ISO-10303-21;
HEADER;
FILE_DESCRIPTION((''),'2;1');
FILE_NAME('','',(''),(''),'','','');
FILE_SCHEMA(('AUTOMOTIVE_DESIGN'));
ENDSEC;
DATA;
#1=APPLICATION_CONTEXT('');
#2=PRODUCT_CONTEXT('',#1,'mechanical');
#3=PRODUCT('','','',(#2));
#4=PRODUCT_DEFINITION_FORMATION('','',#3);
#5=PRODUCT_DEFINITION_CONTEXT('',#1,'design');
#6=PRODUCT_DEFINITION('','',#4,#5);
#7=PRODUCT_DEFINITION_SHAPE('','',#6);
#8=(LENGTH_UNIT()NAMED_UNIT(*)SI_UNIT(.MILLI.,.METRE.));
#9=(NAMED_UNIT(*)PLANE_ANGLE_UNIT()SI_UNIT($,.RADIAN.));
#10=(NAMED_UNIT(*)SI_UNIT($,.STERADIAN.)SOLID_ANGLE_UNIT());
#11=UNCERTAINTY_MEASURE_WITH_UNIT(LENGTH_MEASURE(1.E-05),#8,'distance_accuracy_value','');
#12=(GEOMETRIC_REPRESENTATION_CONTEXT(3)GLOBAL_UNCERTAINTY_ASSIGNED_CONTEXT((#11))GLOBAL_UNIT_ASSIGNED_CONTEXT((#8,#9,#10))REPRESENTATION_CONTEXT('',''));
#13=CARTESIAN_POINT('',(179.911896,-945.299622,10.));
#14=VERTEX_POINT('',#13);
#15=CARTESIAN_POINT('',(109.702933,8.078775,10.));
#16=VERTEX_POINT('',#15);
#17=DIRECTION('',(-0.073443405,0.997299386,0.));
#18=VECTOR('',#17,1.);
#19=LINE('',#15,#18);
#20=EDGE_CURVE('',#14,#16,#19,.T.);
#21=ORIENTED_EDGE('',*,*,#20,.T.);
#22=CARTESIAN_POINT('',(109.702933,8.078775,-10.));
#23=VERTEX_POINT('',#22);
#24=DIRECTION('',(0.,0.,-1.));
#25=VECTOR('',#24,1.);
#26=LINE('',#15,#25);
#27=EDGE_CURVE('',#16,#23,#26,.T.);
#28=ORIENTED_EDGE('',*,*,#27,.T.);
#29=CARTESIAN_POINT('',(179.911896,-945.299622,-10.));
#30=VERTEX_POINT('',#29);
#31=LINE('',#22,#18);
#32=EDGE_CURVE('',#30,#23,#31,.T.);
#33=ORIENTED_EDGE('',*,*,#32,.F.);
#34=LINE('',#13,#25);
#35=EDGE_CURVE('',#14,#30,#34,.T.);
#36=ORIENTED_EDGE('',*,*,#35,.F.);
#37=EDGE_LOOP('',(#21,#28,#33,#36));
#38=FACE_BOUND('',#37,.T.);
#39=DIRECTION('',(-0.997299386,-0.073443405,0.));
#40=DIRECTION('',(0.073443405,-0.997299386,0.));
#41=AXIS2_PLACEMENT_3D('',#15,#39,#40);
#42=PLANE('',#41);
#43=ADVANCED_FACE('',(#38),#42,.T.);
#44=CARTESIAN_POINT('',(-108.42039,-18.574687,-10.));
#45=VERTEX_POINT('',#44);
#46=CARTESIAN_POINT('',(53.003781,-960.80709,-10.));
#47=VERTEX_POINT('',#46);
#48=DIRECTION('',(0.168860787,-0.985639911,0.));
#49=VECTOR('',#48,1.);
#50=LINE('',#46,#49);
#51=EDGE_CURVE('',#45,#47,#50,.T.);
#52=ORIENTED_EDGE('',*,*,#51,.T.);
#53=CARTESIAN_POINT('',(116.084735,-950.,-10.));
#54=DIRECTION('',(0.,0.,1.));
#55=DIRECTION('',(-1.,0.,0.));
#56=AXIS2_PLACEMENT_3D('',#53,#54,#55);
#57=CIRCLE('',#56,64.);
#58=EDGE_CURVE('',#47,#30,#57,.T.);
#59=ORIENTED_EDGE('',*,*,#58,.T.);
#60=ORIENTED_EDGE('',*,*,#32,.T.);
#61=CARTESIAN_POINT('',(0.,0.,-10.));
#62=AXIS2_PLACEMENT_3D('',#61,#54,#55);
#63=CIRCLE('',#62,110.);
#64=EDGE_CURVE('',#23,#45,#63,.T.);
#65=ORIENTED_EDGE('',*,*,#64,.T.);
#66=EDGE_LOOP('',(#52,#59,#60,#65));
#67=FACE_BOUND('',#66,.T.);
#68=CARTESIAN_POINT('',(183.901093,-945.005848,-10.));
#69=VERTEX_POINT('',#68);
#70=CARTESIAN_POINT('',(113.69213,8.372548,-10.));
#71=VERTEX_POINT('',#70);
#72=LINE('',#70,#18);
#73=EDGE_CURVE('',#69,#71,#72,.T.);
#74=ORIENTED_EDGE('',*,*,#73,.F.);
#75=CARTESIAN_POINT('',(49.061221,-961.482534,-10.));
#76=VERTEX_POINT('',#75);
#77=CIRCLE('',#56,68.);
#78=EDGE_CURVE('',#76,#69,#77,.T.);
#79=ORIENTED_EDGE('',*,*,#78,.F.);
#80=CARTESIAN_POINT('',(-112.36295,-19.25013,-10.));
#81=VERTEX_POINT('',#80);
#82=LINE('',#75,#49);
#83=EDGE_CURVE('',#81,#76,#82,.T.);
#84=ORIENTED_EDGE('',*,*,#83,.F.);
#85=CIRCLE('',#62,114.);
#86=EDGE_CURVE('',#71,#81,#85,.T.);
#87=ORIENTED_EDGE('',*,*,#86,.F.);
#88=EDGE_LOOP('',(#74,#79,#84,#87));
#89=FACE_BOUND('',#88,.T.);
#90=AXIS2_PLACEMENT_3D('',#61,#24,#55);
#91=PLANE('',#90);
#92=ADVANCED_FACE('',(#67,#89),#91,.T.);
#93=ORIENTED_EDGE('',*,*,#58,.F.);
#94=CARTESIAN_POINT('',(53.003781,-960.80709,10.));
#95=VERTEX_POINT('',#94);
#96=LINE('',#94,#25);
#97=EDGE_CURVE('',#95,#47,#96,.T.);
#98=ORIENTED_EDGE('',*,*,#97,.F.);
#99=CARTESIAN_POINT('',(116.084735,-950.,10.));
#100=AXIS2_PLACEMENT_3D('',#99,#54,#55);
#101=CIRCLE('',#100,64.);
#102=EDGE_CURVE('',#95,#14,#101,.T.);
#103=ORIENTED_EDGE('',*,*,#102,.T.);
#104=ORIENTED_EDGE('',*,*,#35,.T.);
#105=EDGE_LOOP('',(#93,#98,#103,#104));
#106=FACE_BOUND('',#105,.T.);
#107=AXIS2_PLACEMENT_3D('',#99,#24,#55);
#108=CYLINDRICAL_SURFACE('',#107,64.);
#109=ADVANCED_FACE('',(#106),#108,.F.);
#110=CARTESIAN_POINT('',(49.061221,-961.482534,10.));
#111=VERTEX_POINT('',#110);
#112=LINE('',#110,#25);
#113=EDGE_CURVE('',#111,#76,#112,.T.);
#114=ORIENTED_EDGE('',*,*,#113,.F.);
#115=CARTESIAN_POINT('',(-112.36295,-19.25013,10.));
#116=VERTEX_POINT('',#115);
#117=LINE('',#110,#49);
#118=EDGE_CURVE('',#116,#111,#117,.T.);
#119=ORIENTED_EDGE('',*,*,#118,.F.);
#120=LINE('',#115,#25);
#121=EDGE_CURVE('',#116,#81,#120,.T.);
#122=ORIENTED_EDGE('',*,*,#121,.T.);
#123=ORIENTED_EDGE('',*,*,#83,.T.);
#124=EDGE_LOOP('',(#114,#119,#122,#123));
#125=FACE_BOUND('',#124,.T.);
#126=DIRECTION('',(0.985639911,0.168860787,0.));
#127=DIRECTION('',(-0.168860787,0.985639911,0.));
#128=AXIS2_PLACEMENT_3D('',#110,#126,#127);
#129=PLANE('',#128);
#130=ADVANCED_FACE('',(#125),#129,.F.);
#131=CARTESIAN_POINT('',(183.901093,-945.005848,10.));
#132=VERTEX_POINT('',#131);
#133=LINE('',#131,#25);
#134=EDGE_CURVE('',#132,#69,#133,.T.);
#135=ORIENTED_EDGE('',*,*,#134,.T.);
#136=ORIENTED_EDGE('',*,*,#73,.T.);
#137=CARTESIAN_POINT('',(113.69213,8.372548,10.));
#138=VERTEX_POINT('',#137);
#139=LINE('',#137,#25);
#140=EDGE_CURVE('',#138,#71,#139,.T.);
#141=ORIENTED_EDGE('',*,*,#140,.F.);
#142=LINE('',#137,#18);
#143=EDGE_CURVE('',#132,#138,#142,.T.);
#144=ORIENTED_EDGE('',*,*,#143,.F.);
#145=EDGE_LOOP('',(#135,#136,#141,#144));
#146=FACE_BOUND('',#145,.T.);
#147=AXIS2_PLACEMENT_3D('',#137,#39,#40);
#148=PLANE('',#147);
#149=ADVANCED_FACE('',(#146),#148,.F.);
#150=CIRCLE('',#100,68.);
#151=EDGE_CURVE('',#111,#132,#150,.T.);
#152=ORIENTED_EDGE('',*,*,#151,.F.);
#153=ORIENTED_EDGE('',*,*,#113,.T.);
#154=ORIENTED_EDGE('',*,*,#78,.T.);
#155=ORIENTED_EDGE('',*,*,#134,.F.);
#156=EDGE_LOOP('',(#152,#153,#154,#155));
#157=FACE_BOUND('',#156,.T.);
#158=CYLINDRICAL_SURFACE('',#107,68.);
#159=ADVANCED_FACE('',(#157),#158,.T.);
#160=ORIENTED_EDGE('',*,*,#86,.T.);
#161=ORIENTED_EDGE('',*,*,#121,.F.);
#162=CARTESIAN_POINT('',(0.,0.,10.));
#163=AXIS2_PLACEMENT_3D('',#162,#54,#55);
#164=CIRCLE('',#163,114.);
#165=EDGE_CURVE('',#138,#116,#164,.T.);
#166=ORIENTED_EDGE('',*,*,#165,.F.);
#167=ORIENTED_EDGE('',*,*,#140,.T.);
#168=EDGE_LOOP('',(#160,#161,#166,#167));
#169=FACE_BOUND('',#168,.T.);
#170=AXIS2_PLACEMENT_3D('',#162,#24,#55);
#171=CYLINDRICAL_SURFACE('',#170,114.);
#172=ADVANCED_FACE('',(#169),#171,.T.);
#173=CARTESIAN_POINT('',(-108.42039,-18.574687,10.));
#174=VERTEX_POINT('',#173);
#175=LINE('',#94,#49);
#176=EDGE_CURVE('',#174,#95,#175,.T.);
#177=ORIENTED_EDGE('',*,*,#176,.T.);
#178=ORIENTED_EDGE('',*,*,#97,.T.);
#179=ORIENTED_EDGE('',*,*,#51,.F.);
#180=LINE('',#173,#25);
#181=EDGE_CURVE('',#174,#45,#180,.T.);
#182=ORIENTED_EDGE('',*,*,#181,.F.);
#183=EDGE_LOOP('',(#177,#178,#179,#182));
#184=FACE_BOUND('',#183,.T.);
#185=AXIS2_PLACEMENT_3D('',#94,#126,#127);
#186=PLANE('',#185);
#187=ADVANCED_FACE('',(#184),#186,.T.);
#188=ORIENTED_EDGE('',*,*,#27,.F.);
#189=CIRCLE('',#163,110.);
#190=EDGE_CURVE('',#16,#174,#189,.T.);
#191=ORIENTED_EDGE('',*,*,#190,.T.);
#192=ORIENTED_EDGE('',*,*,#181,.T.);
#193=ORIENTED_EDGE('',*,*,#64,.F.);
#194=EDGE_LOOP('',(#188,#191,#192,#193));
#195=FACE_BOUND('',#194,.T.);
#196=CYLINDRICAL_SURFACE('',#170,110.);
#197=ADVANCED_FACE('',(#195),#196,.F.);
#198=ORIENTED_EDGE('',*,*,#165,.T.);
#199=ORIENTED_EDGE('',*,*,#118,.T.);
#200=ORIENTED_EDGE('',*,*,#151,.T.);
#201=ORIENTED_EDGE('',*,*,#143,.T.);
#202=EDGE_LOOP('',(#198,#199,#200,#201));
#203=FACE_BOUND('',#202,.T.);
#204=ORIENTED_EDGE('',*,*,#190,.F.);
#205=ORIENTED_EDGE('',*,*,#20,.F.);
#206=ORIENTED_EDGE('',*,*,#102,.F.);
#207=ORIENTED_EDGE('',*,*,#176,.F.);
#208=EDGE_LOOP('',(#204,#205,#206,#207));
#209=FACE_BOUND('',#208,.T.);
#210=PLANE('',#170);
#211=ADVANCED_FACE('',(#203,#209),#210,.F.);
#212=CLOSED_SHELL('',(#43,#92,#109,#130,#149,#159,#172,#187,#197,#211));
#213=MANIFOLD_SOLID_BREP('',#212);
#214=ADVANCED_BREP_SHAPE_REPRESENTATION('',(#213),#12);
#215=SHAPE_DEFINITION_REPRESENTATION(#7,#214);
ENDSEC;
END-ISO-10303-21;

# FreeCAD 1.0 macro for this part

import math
import FreeCAD as App
import Part
import Sketcher

V = App.Vector
Q = App.Units.Quantity

doc = App.newDocument("Part")
body = doc.addObject("PartDesign::Body", "Body")

sketch1 = body.newObject("Sketcher::SketchObject", "Sketch")
sketch1.AttachmentSupport = (doc.getObject("XY_Plane"), [""])
sketch1.MapMode = "FlatFace"
sketch1.addGeometry([
    Part.LineSegment(V(184, -945, 0), V(114, 8, 0)),
    Part.ArcOfCircle(Part.Circle(V(0, 0, 0), V(0, 0, 1), 114), math.radians(4), math.radians(190)),
    Part.LineSegment(V(-112, -19, 0), V(49, -961, 0)),
    Part.ArcOfCircle(Part.Circle(V(116, -950, 0), V(0, 0, 1), 68), math.radians(-170), math.radians(4)),
    Part.LineSegment(V(110, 8, 0), V(180, -945, 0)),
    Part.ArcOfCircle(Part.Circle(V(116, -950, 0), V(0, 0, 1), 64), math.radians(-170), math.radians(4)),
    Part.LineSegment(V(53, -961, 0), V(-108, -19, 0)),
    Part.ArcOfCircle(Part.Circle(V(0, 0, 0), V(0, 0, 1), 110), math.radians(4), math.radians(190)),
], False)
sketch1.addConstraint([
    Sketcher.Constraint("Tangent", 0, 2, 1, 1),
    Sketcher.Constraint("Tangent", 1, 2, 2, 1),
    Sketcher.Constraint("Tangent", 2, 2, 3, 1),
    Sketcher.Constraint("Tangent", 3, 2, 0, 1),
    Sketcher.Constraint("Tangent", 4, 2, 5, 2),
    Sketcher.Constraint("Tangent", 5, 1, 6, 1),
    Sketcher.Constraint("Tangent", 6, 2, 7, 2),
    Sketcher.Constraint("Tangent", 7, 1, 4, 1),
    Sketcher.Constraint("Coincident", 1, 3, -1, 1),
    Sketcher.Constraint("Coincident", 7, 3, -1, 1),
    Sketcher.Constraint("Coincident", 5, 3, 3, 3),
    Sketcher.Constraint("Parallel", 0, 4),
    Sketcher.Constraint("Radius", 1, Q("114 mm")),
    Sketcher.Constraint("Radius", 3, Q("68 mm")),
    Sketcher.Constraint("Radius", 5, Q("64 mm")),
    Sketcher.Constraint("DistanceY", 3, 3, -1, 1, Q("950 mm")),
    Sketcher.Constraint("DistanceX", -1, 1, 0, 2, Q("113.69213 mm")),
])
pad1 = body.newObject("PartDesign::Pad", "Pad")
pad1.Profile = sketch1
pad1.Length = 20
pad1.Midplane = True

doc.recompute()
